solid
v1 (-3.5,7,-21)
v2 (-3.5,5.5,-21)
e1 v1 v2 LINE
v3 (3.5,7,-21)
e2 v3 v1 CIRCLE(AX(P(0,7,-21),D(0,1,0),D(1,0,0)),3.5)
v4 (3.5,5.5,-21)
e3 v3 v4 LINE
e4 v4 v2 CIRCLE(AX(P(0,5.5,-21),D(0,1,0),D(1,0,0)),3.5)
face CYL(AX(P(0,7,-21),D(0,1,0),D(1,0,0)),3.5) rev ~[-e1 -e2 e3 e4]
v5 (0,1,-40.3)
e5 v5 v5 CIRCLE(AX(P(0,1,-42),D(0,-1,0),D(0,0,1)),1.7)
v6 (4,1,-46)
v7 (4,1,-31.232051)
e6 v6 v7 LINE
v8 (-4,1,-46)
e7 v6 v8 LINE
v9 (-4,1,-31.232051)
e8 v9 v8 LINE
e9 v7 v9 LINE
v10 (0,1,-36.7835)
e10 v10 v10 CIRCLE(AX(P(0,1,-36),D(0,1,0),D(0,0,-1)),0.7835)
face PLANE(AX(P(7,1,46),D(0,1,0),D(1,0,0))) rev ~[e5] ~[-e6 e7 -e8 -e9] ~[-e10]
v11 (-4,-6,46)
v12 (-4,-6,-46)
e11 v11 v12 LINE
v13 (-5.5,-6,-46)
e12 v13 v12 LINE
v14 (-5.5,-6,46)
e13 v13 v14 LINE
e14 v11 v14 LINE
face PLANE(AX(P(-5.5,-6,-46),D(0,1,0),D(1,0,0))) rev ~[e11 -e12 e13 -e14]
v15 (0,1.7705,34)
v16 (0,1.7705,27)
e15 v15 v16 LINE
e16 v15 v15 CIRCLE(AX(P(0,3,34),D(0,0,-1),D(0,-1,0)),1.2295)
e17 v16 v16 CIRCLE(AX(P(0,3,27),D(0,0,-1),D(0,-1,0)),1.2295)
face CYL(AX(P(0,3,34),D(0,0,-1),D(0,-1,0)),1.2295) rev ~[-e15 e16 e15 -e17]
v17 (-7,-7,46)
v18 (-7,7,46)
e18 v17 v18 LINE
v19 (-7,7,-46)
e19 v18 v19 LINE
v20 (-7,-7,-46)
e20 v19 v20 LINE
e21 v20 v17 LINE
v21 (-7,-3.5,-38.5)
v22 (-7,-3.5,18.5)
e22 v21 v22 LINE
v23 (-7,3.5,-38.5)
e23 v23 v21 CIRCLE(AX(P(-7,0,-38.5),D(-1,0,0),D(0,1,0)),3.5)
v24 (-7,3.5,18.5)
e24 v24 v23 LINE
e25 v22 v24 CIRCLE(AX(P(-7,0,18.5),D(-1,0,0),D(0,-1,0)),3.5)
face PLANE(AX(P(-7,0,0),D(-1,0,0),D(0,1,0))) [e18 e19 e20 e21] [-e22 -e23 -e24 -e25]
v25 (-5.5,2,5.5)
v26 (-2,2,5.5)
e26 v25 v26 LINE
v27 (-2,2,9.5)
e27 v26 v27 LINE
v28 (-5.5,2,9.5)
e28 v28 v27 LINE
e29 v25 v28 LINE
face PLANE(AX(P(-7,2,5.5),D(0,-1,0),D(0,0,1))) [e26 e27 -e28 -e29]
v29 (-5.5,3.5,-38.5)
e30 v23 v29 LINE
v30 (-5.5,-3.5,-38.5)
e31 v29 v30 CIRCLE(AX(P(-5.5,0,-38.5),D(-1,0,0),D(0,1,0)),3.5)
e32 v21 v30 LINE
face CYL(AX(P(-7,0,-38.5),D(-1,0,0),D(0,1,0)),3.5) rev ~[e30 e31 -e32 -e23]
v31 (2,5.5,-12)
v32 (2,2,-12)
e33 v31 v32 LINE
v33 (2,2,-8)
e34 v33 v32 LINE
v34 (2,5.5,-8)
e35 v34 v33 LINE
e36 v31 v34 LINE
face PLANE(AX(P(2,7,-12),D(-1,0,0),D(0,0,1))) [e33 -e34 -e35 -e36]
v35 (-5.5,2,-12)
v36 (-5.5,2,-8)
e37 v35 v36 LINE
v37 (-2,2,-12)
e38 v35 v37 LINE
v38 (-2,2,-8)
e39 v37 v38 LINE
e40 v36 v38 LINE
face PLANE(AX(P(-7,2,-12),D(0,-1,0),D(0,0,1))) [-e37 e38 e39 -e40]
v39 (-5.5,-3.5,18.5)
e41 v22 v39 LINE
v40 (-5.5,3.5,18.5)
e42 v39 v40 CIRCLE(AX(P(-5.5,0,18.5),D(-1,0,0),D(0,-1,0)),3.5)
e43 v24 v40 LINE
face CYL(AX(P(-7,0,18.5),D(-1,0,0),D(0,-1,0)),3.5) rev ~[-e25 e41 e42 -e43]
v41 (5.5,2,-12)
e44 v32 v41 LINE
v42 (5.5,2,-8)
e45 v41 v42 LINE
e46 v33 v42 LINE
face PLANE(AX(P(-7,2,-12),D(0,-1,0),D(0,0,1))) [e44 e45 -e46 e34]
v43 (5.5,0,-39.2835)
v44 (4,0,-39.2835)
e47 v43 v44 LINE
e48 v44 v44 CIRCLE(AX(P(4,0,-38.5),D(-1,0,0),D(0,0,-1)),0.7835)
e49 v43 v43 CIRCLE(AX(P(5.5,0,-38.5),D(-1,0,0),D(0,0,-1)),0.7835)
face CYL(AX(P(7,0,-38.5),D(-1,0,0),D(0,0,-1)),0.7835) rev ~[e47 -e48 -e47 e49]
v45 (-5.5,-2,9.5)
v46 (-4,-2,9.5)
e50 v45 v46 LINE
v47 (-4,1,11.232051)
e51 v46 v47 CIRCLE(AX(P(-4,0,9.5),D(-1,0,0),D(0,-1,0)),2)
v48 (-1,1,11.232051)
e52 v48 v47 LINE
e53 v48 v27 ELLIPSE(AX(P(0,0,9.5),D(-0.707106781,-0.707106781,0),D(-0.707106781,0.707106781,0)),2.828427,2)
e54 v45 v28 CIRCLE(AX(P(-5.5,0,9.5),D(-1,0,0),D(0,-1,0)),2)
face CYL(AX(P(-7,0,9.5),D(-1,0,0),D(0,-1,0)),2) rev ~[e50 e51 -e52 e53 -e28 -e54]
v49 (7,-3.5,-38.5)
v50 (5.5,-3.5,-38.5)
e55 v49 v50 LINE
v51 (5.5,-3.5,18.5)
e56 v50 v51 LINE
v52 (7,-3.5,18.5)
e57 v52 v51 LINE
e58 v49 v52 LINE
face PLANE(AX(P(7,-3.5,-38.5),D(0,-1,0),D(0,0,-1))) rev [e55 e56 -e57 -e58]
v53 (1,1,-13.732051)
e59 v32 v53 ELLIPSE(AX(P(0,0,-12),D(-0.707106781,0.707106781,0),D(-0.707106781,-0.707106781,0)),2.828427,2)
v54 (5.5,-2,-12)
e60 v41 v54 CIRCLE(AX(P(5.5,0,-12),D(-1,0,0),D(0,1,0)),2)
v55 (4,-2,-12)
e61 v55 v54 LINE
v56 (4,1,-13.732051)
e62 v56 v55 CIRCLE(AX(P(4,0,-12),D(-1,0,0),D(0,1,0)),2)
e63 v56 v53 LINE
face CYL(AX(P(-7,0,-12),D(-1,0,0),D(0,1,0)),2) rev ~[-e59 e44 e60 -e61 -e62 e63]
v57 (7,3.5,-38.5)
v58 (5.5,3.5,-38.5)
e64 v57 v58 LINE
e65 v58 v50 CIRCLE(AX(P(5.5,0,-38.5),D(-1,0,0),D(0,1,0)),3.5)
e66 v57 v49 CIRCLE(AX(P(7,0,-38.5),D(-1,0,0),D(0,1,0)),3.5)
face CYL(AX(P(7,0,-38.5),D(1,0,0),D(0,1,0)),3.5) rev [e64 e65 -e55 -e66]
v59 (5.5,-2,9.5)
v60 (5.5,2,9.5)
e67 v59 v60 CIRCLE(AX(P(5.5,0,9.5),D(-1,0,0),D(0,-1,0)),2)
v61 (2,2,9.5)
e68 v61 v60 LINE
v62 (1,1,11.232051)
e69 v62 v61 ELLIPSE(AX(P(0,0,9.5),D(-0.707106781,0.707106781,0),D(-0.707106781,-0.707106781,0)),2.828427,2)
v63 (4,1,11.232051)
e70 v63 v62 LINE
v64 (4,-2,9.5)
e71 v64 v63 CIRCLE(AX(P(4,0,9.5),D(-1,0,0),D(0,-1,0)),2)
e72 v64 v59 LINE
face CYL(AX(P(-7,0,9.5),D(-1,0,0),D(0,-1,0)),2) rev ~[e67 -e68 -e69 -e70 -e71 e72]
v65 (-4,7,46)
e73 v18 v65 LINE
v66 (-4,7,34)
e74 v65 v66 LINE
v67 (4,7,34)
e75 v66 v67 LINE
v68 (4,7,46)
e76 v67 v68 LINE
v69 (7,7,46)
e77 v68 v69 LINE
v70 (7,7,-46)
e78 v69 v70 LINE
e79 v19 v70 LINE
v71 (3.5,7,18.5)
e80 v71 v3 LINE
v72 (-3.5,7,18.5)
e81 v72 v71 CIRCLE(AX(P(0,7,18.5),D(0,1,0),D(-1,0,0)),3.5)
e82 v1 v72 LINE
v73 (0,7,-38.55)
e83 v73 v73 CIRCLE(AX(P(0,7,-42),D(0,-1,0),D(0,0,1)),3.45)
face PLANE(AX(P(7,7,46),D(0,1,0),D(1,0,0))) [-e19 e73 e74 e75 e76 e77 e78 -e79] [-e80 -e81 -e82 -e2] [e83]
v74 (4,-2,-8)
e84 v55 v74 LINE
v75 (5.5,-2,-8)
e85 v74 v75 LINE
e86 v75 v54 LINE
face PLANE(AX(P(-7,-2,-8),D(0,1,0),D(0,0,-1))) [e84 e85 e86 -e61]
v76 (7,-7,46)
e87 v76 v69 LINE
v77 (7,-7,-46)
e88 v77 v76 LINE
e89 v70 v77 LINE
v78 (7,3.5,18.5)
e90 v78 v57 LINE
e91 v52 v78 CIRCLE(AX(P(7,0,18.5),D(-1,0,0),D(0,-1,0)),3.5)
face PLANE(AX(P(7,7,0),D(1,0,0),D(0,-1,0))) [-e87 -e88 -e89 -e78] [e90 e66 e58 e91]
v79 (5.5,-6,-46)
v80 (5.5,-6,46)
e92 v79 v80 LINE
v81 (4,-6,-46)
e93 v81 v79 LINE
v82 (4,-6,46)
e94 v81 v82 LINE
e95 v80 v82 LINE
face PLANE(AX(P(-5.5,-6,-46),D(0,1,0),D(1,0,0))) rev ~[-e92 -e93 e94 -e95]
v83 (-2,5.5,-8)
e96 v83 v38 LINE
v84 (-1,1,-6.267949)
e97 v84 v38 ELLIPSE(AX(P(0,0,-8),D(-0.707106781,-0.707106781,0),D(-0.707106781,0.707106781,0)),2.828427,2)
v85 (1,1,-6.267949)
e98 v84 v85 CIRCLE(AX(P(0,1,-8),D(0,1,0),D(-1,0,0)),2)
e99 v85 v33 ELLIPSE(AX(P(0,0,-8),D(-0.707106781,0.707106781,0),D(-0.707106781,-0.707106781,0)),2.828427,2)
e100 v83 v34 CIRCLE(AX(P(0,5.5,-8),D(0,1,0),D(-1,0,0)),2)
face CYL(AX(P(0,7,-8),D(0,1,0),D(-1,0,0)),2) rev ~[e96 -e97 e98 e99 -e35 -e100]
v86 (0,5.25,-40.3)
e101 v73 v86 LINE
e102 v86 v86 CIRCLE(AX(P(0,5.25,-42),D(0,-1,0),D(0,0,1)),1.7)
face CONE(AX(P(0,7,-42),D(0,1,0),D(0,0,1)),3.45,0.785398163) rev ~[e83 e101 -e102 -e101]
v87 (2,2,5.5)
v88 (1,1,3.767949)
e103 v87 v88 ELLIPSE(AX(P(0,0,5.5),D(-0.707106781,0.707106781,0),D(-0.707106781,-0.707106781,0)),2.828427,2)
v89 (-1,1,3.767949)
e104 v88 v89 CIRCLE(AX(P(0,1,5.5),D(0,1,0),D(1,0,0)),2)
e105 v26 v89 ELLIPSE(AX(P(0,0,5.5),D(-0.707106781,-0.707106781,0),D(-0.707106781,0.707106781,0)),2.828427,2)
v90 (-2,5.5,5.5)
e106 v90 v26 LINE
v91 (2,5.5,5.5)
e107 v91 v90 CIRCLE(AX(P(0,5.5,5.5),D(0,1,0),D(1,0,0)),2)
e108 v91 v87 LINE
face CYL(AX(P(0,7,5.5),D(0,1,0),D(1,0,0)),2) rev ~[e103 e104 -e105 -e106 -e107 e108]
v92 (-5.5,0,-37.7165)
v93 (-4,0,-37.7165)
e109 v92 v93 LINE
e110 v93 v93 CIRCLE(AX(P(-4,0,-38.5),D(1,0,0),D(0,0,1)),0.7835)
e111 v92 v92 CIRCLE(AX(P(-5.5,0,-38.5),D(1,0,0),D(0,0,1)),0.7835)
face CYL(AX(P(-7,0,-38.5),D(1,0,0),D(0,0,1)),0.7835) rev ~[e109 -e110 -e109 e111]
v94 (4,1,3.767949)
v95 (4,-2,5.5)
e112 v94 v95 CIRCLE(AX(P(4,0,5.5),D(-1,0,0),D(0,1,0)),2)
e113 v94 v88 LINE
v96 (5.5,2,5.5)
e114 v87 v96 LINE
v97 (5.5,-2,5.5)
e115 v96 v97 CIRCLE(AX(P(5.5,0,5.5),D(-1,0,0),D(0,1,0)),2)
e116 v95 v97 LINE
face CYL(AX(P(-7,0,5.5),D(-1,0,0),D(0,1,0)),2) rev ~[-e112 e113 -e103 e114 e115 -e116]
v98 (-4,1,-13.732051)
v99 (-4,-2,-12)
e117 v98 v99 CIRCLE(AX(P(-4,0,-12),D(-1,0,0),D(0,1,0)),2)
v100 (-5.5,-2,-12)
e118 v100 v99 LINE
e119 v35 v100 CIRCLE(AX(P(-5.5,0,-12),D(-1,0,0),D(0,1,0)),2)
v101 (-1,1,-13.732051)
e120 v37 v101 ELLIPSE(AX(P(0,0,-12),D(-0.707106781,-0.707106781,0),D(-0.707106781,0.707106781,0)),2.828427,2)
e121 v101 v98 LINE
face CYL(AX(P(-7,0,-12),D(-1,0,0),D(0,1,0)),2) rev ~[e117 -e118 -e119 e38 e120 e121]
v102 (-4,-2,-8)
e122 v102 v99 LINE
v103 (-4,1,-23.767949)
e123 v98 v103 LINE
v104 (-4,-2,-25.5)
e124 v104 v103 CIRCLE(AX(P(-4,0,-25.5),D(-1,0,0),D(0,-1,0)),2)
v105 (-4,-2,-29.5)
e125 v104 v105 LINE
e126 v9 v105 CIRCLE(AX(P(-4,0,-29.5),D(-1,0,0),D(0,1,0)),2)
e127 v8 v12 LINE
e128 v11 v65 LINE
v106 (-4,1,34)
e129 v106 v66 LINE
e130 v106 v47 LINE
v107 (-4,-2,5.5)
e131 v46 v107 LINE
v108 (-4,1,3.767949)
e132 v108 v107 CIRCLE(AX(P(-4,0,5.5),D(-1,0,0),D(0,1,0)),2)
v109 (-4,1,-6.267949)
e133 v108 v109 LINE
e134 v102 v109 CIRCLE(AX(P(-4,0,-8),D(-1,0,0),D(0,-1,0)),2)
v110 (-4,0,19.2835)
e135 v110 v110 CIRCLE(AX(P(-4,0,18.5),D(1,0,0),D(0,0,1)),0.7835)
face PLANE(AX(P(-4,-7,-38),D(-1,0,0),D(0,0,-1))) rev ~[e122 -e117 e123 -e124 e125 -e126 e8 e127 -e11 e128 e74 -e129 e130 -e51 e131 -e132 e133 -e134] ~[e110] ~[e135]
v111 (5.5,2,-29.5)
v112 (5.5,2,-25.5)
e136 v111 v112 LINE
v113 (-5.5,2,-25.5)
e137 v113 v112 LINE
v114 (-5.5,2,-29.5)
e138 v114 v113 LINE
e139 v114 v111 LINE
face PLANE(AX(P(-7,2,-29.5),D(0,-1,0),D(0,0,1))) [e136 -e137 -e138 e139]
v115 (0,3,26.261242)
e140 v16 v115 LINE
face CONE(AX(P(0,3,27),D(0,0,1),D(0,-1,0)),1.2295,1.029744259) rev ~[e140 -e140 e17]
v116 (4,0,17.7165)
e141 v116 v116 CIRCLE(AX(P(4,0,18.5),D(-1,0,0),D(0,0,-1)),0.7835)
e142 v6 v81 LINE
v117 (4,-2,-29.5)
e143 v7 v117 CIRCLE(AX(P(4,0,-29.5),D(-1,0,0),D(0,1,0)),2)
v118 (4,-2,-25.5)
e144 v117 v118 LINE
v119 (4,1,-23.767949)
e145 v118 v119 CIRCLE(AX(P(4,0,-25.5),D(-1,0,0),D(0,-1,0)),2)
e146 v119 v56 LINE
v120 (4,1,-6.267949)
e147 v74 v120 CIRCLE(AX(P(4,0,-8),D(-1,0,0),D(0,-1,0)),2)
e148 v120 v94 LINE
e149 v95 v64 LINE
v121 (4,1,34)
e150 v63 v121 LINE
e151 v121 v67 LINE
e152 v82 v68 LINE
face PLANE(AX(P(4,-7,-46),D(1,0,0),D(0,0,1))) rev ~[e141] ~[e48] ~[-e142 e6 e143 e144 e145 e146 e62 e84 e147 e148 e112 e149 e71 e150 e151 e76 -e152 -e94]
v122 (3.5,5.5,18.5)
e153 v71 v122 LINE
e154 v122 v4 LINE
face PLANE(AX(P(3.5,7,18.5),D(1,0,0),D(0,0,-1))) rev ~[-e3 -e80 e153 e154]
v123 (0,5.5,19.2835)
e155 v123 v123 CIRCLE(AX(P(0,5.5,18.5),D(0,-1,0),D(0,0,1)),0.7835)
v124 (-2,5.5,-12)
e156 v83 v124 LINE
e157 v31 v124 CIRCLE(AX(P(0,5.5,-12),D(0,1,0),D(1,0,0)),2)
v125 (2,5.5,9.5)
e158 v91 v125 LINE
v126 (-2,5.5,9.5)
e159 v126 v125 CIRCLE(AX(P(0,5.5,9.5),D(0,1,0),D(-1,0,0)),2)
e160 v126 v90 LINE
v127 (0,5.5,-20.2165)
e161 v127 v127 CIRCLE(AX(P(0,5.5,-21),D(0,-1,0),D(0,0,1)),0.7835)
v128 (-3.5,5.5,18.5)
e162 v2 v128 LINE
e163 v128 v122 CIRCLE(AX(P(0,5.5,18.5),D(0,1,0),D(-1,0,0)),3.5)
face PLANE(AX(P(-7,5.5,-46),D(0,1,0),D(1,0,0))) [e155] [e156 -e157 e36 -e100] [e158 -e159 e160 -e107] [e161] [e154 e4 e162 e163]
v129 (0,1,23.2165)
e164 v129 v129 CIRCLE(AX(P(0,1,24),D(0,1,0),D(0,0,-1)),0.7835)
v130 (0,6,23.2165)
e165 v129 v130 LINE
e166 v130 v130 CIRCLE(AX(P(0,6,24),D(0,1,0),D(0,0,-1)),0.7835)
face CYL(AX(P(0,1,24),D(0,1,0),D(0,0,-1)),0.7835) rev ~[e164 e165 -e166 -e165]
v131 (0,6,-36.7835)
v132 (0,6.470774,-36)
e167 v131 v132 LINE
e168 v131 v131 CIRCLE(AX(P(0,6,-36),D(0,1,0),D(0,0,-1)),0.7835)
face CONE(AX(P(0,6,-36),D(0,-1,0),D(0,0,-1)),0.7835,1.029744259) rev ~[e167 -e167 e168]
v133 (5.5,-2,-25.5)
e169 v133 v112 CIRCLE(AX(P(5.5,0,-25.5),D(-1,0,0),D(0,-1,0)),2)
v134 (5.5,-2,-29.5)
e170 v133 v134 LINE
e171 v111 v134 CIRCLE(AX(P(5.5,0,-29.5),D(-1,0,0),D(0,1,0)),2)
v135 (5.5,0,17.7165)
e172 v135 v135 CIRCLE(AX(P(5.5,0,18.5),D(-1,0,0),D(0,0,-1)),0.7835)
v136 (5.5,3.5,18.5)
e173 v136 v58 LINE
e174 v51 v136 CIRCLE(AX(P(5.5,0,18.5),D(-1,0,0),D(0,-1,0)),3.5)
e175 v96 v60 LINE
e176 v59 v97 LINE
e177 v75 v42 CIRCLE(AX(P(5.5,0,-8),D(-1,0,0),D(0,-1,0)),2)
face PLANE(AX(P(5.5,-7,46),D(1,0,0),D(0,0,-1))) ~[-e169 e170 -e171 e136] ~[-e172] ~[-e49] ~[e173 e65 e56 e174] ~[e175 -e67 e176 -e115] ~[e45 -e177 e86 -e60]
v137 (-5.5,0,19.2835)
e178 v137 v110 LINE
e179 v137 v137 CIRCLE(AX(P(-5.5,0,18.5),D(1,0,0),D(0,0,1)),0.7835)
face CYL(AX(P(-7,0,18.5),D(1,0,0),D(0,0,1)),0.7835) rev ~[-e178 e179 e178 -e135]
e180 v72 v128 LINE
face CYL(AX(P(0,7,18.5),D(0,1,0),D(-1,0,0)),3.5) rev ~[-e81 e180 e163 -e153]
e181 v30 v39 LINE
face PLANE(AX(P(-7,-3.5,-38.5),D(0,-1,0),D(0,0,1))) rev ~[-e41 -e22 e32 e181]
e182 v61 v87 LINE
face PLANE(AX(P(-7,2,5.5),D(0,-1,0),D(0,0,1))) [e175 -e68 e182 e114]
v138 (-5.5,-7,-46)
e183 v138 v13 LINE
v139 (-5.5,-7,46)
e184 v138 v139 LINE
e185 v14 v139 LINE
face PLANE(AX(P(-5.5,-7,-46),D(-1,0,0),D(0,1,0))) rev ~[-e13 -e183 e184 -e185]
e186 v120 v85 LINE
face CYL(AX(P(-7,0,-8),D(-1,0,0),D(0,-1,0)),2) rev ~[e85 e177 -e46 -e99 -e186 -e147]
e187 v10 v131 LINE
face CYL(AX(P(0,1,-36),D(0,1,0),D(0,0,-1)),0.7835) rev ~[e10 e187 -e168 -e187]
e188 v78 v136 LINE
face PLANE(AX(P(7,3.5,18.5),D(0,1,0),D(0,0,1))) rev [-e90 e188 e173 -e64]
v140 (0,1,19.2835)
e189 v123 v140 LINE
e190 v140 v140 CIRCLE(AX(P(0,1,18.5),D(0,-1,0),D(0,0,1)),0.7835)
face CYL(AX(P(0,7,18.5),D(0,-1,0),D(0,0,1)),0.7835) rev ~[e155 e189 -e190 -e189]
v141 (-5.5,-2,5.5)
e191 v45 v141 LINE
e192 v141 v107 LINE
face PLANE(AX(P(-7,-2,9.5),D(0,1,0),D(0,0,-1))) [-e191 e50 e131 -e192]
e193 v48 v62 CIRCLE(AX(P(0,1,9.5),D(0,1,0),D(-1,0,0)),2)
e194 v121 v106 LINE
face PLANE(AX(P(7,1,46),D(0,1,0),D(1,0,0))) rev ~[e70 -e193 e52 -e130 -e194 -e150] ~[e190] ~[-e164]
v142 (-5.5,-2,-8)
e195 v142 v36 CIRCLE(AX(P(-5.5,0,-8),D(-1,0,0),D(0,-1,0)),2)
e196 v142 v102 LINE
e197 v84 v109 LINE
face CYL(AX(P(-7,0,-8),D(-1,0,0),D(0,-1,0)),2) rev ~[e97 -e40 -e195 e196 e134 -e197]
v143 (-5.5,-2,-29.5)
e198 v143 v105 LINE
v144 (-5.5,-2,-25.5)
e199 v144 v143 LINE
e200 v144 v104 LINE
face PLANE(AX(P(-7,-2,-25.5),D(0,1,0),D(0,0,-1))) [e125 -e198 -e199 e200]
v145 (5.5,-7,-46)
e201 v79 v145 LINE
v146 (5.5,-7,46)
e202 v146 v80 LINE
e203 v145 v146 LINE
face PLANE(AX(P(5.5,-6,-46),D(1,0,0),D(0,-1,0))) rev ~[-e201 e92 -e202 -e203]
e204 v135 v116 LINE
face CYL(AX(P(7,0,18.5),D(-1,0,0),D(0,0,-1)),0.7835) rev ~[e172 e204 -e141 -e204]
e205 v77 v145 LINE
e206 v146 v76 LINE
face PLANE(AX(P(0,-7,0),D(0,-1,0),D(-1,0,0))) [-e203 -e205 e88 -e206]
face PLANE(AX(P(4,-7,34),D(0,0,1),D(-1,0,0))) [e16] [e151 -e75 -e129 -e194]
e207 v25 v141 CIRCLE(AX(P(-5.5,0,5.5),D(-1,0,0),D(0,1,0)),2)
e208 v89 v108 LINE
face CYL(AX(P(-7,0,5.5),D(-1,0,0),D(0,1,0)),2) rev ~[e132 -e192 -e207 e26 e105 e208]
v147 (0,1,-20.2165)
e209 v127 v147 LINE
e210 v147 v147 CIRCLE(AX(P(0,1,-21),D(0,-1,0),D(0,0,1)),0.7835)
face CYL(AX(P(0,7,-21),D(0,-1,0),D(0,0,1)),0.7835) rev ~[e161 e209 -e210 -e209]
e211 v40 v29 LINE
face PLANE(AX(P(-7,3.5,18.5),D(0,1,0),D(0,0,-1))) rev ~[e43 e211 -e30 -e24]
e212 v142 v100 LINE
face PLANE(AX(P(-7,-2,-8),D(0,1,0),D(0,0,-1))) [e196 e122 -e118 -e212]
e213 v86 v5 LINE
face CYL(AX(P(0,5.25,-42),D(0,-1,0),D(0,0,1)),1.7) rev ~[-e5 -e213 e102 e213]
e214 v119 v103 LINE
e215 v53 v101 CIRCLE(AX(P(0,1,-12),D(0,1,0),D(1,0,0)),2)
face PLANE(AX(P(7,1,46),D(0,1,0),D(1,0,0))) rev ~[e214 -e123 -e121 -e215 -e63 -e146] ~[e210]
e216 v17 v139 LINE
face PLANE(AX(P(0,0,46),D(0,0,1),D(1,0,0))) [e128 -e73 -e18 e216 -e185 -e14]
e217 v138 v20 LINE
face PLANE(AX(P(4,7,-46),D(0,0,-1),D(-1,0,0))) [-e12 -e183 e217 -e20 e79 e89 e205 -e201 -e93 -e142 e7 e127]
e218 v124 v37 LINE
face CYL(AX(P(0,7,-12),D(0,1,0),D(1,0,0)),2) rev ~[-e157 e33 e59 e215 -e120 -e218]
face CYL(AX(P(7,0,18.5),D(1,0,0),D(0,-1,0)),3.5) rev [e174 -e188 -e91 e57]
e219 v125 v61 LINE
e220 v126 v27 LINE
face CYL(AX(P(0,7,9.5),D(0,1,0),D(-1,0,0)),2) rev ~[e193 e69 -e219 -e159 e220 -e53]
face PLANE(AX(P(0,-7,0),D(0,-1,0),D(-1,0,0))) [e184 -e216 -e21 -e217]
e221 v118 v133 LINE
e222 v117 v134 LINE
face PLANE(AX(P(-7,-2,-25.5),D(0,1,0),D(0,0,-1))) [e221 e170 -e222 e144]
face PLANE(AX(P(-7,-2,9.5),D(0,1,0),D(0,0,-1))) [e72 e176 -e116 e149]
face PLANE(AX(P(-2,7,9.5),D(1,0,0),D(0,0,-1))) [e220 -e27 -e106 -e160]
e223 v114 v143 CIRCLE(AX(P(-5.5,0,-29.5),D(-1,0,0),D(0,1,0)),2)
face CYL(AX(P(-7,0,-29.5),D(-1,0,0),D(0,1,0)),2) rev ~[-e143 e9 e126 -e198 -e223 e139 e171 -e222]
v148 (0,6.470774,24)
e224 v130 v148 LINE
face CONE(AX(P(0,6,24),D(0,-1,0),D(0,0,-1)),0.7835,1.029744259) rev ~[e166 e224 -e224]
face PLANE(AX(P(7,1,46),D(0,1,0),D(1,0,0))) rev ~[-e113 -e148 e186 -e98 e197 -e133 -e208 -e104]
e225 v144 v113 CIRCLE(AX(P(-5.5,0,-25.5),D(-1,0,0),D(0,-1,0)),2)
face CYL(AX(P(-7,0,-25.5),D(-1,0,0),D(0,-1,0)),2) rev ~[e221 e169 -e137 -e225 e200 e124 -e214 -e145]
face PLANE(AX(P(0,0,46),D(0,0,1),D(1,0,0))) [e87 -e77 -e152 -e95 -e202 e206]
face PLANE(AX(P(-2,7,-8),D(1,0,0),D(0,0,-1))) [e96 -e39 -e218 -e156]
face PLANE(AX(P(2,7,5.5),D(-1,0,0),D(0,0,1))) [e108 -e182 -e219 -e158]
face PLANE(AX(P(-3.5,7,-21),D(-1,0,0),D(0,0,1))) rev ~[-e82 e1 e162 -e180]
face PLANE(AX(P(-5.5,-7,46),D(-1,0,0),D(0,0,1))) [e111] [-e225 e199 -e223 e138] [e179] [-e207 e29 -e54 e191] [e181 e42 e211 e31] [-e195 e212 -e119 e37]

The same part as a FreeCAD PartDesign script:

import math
import FreeCAD as App
import Part
import Sketcher
from FreeCAD import Vector
Q = App.Units.Quantity


def add_polygon(sketch, points):
    """Adds a closed chain of lines whose ends are joined by coincident constraints."""
    first, n = sketch.GeometryCount, len(points)
    for a, b in zip(points, points[1:] + points[:1]):
        sketch.addGeometry(Part.LineSegment(App.Vector(*a, 0), App.Vector(*b, 0)), False)
    for i in range(n):
        sketch.addConstraint(Sketcher.Constraint("Coincident", first + i, 2, first + (i + 1) % n, 1))

doc = App.newDocument("Part")
body = doc.addObject("PartDesign::Body", "Body")

sketch1 = doc.addObject("Sketcher::SketchObject", "Sketch")
body.addObject(sketch1)
sketch1.AttachmentSupport = (doc.XY_Plane, [""])
sketch1.MapMode = "FlatFace"
add_polygon(sketch1, [(-7, 7), (-7, -7), (7, -7), (7, 7)])
sketch1.addConstraint([
    Sketcher.Constraint("Vertical", 0),
    Sketcher.Constraint("Horizontal", 1),
    Sketcher.Constraint("Vertical", 2),
    Sketcher.Constraint("Horizontal", 3),
    Sketcher.Constraint("Symmetric", 0, 2, 2, 2, -1, 1),
    Sketcher.Constraint("Equal", 3, 0),
    Sketcher.Constraint("DistanceX", 1, 1, 1, 2, Q("14 mm")),
])
pad1 = doc.addObject("PartDesign::Pad", "Pad")
body.addObject(pad1)
pad1.Profile = sketch1
pad1.Length = 92
pad1.Midplane = True

sketch2 = doc.addObject("Sketcher::SketchObject", "Sketch001")
body.addObject(sketch2)
sketch2.AttachmentSupport = (doc.XZ_Plane, [""])
sketch2.MapMode = "FlatFace"
sketch2.AttachmentOffset = App.Placement(Vector(0, 0, 7), App.Rotation())
add_polygon(sketch2, [(4, 46), (-4, 46), (-4, 34), (4, 34)])
add_polygon(sketch2, [(-4, -38), (-4, -46), (4, -46), (4, -38)])
sketch2.addConstraint([
    Sketcher.Constraint("Horizontal", 0),
    Sketcher.Constraint("Vertical", 1),
    Sketcher.Constraint("Horizontal", 2),
    Sketcher.Constraint("Vertical", 3),
    Sketcher.Constraint("Vertical", 4),
    Sketcher.Constraint("Horizontal", 5),
    Sketcher.Constraint("Vertical", 6),
    Sketcher.Constraint("Horizontal", 7),
    Sketcher.Constraint("Symmetric", 3, 2, 4, 2, -1, 1),
    Sketcher.Constraint("Vertical", 1, 2, 4, 2),
    Sketcher.Constraint("Vertical", 3, 2, 5, 2),
    Sketcher.Constraint("Equal", 7, 4),
    Sketcher.Constraint("DistanceX", 0, 2, 0, 1, Q("8 mm")),
    Sketcher.Constraint("DistanceY", 1, 2, 1, 1, Q("12 mm")),
    Sketcher.Constraint("DistanceY", -1, 1, 0, 2, Q("46 mm")),
])
pocket1 = doc.addObject("PartDesign::Pocket", "Pocket")
body.addObject(pocket1)
pocket1.Profile = sketch2
pocket1.Type = "ThroughAll"

sketch3 = doc.addObject("Sketcher::SketchObject", "Sketch002")
body.addObject(sketch3)
sketch3.AttachmentSupport = (doc.XY_Plane, [""])
sketch3.MapMode = "FlatFace"
sketch3.AttachmentOffset = App.Placement(Vector(0, 0, 34), App.Rotation())
add_polygon(sketch3, [(-4, -7), (4, -7), (4, 1), (-4, 1)])
sketch3.addConstraint([
    Sketcher.Constraint("Horizontal", 0),
    Sketcher.Constraint("Vertical", 1),
    Sketcher.Constraint("Horizontal", 2),
    Sketcher.Constraint("Vertical", 3),
    Sketcher.Constraint("Equal", 2, 1),
    Sketcher.Constraint("DistanceX", 0, 1, 0, 2, Q("8 mm")),
    Sketcher.Constraint("DistanceX", -1, 1, 0, 2, Q("4 mm")),
    Sketcher.Constraint("DistanceY", 0, 2, -1, 1, Q("7 mm")),
])
pocket2 = doc.addObject("PartDesign::Pocket", "Pocket001")
body.addObject(pocket2)
pocket2.Profile = sketch3
pocket2.Type = "ThroughAll"

sketch4 = doc.addObject("Sketcher::SketchObject", "Sketch003")
body.addObject(sketch4)
sketch4.AttachmentSupport = (doc.XY_Plane, [""])
sketch4.MapMode = "FlatFace"
sketch4.AttachmentOffset = App.Placement(Vector(0, 0, 34), App.Rotation())
sketch4.addGeometry(Part.Circle(Vector(0, 3, 0), Vector(0, 0, 1), 1.2295), False)
sketch4.addConstraint([
    Sketcher.Constraint("PointOnObject", 0, 3, -2),
    Sketcher.Constraint("Diameter", 0, Q("2.459 mm")),
    Sketcher.Constraint("DistanceY", -1, 1, 0, 3, Q("3 mm")),
])
doc.recompute()
hole = doc.addObject("PartDesign::Hole", "Hole")
body.addObject(hole)
hole.Profile = sketch4
hole.ThreadType = "None"
hole.Diameter = 2.459
hole.DepthType = "Dimension"
hole.Depth = 7
hole.DrillPoint = "Angled"
hole.DrillPointAngle = 118

sketch5 = doc.addObject("Sketcher::SketchObject", "Sketch004")
body.addObject(sketch5)
sketch5.AttachmentSupport = (doc.XZ_Plane, [""])
sketch5.MapMode = "FlatFace"
sketch5.AttachmentOffset = App.Placement(Vector(0, 0, -7), App.Rotation())
add_polygon(sketch5, [(-4, -46), (-4, -38), (4, -38), (4, -46)])
sketch5.addConstraint([
    Sketcher.Constraint("Vertical", 0),
    Sketcher.Constraint("Horizontal", 1),
    Sketcher.Constraint("Vertical", 2),
    Sketcher.Constraint("Horizontal", 3),
    Sketcher.Constraint("Equal", 3, 0),
    Sketcher.Constraint("DistanceX", 1, 1, 1, 2, Q("8 mm")),
    Sketcher.Constraint("DistanceX", 0, 2, -1, 1, Q("4 mm")),
    Sketcher.Constraint("DistanceY", 0, 2, -1, 1, Q("38 mm")),
])
pad2 = doc.addObject("PartDesign::Pad", "Pad001")
body.addObject(pad2)
pad2.Profile = sketch5
pad2.Length = 6

sketch6 = doc.addObject("Sketcher::SketchObject", "Sketch005")
body.addObject(sketch6)
sketch6.AttachmentSupport = (doc.YZ_Plane, [""])
sketch6.MapMode = "FlatFace"
sketch6.AttachmentOffset = App.Placement(Vector(0, 0, -7), App.Rotation())
sketch6.addGeometry([
    Part.ArcOfCircle(Part.Circle(Vector(0, -38.5, 0), Vector(0, 0, 1), 3.5), math.radians(180), math.radians(360)),
    Part.LineSegment(Vector(-3.5, -38.5, 0), Vector(-3.5, 18.5, 0)),
    Part.ArcOfCircle(Part.Circle(Vector(0, 18.5, 0), Vector(0, 0, 1), 3.5), math.radians(0), math.radians(180)),
    Part.LineSegment(Vector(3.5, 18.5, 0), Vector(3.5, -38.5, 0)),
], False)
sketch6.addConstraint([
    Sketcher.Constraint("Tangent", 0, 1, 1, 1),
    Sketcher.Constraint("Tangent", 1, 2, 2, 2),
    Sketcher.Constraint("Tangent", 2, 1, 3, 1),
    Sketcher.Constraint("Tangent", 3, 2, 0, 2),
    Sketcher.Constraint("Vertical", 1),
    Sketcher.Constraint("Vertical", 3),
    Sketcher.Constraint("PointOnObject", 0, 3, -2),
    Sketcher.Constraint("Radius", 0, Q("3.5 mm")),
    Sketcher.Constraint("DistanceY", 1, 1, 1, 2, Q("57 mm")),
    Sketcher.Constraint("DistanceY", 0, 3, -1, 1, Q("38.5 mm")),
])
pocket3 = doc.addObject("PartDesign::Pocket", "Pocket002")
body.addObject(pocket3)
pocket3.Profile = sketch6
pocket3.Length = 1.5
pocket3.Reversed = True

sketch7 = doc.addObject("Sketcher::SketchObject", "Sketch006")
body.addObject(sketch7)
sketch7.AttachmentSupport = (doc.XZ_Plane, [""])
sketch7.MapMode = "FlatFace"
sketch7.AttachmentOffset = App.Placement(Vector(0, 0, -7), App.Rotation())
sketch7.addGeometry([
    Part.ArcOfCircle(Part.Circle(Vector(0, -21, 0), Vector(0, 0, 1), 3.5), math.radians(180), math.radians(360)),
    Part.LineSegment(Vector(-3.5, -21, 0), Vector(-3.5, 18.5, 0)),
    Part.ArcOfCircle(Part.Circle(Vector(0, 18.5, 0), Vector(0, 0, 1), 3.5), math.radians(0), math.radians(180)),
    Part.LineSegment(Vector(3.5, 18.5, 0), Vector(3.5, -21, 0)),
], False)
sketch7.addConstraint([
    Sketcher.Constraint("Tangent", 0, 1, 1, 1),
    Sketcher.Constraint("Tangent", 1, 2, 2, 2),
    Sketcher.Constraint("Tangent", 2, 1, 3, 1),
    Sketcher.Constraint("Tangent", 3, 2, 0, 2),
    Sketcher.Constraint("Vertical", 1),
    Sketcher.Constraint("Vertical", 3),
    Sketcher.Constraint("PointOnObject", 0, 3, -2),
    Sketcher.Constraint("Radius", 0, Q("3.5 mm")),
    Sketcher.Constraint("DistanceY", 1, 1, 1, 2, Q("39.5 mm")),
    Sketcher.Constraint("DistanceY", 0, 3, -1, 1, Q("21 mm")),
])
pocket4 = doc.addObject("PartDesign::Pocket", "Pocket003")
body.addObject(pocket4)
pocket4.Profile = sketch7
pocket4.Length = 1.5
pocket4.Reversed = True
doc.recompute()

mirrored = doc.addObject("PartDesign::Mirrored", "Mirrored")
body.addObject(mirrored)
mirrored.Originals = [pocket3]
mirrored.MirrorPlane = (doc.YZ_Plane, [""])
body.Tip = mirrored

sketch8 = doc.addObject("Sketcher::SketchObject", "Sketch007")
body.addObject(sketch8)
sketch8.AttachmentSupport = (doc.XY_Plane, [""])
sketch8.MapMode = "FlatFace"
sketch8.AttachmentOffset = App.Placement(Vector(0, 0, -46), App.Rotation())
add_polygon(sketch8, [(5.5, -6), (5.5, -7), (-5.5, -7), (-5.5, -6)])
sketch8.addConstraint([
    Sketcher.Constraint("Vertical", 0),
    Sketcher.Constraint("Horizontal", 1),
    Sketcher.Constraint("Vertical", 2),
    Sketcher.Constraint("Horizontal", 3),
    Sketcher.Constraint("DistanceX", 1, 2, 1, 1, Q("11 mm")),
    Sketcher.Constraint("DistanceY", 0, 2, 0, 1, Q("1 mm")),
    Sketcher.Constraint("DistanceY", 0, 2, -1, 1, Q("7 mm")),
    Sketcher.Constraint("DistanceX", -1, 1, 0, 2, Q("5.5 mm")),
])
pocket5 = doc.addObject("PartDesign::Pocket", "Pocket004")
body.addObject(pocket5)
pocket5.Profile = sketch8
pocket5.Type = "ThroughAll"
pocket5.Reversed = True

sketch9 = doc.addObject("Sketcher::SketchObject", "Sketch008")
body.addObject(sketch9)
sketch9.AttachmentSupport = (doc.YZ_Plane, [""])
sketch9.MapMode = "FlatFace"
sketch9.AttachmentOffset = App.Placement(Vector(0, 0, -7), App.Rotation())
sketch9.addGeometry([
    Part.LineSegment(Vector(2, -8, 0), Vector(2, -12, 0)),
    Part.ArcOfCircle(Part.Circle(Vector(0, -12, 0), Vector(0, 0, 1), 2), math.radians(180), math.radians(360)),
    Part.LineSegment(Vector(-2, -12, 0), Vector(-2, -8, 0)),
    Part.ArcOfCircle(Part.Circle(Vector(0, -8, 0), Vector(0, 0, 1), 2), math.radians(0), math.radians(180)),
    Part.LineSegment(Vector(-2, -29.5, 0), Vector(-2, -25.5, 0)),
    Part.ArcOfCircle(Part.Circle(Vector(0, -25.5, 0), Vector(0, 0, 1), 2), math.radians(0), math.radians(180)),
    Part.LineSegment(Vector(2, -25.5, 0), Vector(2, -29.5, 0)),
    Part.ArcOfCircle(Part.Circle(Vector(0, -29.5, 0), Vector(0, 0, 1), 2), math.radians(180), math.radians(360)),
    Part.LineSegment(Vector(2, 9.5, 0), Vector(2, 5.5, 0)),
    Part.ArcOfCircle(Part.Circle(Vector(0, 5.5, 0), Vector(0, 0, 1), 2), math.radians(180), math.radians(360)),
    Part.LineSegment(Vector(-2, 5.5, 0), Vector(-2, 9.5, 0)),
    Part.ArcOfCircle(Part.Circle(Vector(0, 9.5, 0), Vector(0, 0, 1), 2), math.radians(0), math.radians(180)),
], False)
sketch9.addConstraint([
    Sketcher.Constraint("Tangent", 0, 2, 1, 2),
    Sketcher.Constraint("Tangent", 1, 1, 2, 1),
    Sketcher.Constraint("Tangent", 2, 2, 3, 2),
    Sketcher.Constraint("Tangent", 3, 1, 0, 1),
    Sketcher.Constraint("Tangent", 4, 2, 5, 2),
    Sketcher.Constraint("Tangent", 5, 1, 6, 1),
    Sketcher.Constraint("Tangent", 6, 2, 7, 2),
    Sketcher.Constraint("Tangent", 7, 1, 4, 1),
    Sketcher.Constraint("Tangent", 8, 2, 9, 2),
    Sketcher.Constraint("Tangent", 9, 1, 10, 1),
    Sketcher.Constraint("Tangent", 10, 2, 11, 2),
    Sketcher.Constraint("Tangent", 11, 1, 8, 1),
    Sketcher.Constraint("Vertical", 0),
    Sketcher.Constraint("Vertical", 2),
    Sketcher.Constraint("Vertical", 4),
    Sketcher.Constraint("Vertical", 6),
    Sketcher.Constraint("Vertical", 8),
    Sketcher.Constraint("Vertical", 10),
    Sketcher.Constraint("Equal", 3, 5),
    Sketcher.Constraint("Equal", 7, 9),
    Sketcher.Constraint("PointOnObject", 1, 3, -2),
    Sketcher.Constraint("PointOnObject", 5, 3, -2),
    Sketcher.Constraint("PointOnObject", 9, 3, -2),
    Sketcher.Constraint("Equal", 2, 4),
    Sketcher.Constraint("Equal", 6, 8),
    Sketcher.Constraint("Radius", 1, Q("2 mm")),
    Sketcher.Constraint("DistanceY", 0, 2, 0, 1, Q("4 mm")),
    Sketcher.Constraint("DistanceY", 1, 3, -1, 1, Q("12 mm")),
    Sketcher.Constraint("DistanceY", 5, 3, 9, 3, Q("31 mm")),
    Sketcher.Constraint("DistanceY", 5, 3, -1, 1, Q("25.5 mm")),
])
pocket6 = doc.addObject("PartDesign::Pocket", "Pocket005")
body.addObject(pocket6)
pocket6.Profile = sketch9
pocket6.Type = "ThroughAll"
pocket6.Reversed = True

sketch10 = doc.addObject("Sketcher::SketchObject", "Sketch009")
body.addObject(sketch10)
sketch10.AttachmentSupport = (doc.XZ_Plane, [""])
sketch10.MapMode = "FlatFace"
sketch10.AttachmentOffset = App.Placement(Vector(0, 0, -7), App.Rotation())
sketch10.addGeometry([
    Part.LineSegment(Vector(-2, -12, 0), Vector(-2, -8, 0)),
    Part.ArcOfCircle(Part.Circle(Vector(0, -8, 0), Vector(0, 0, 1), 2), math.radians(0), math.radians(180)),
    Part.LineSegment(Vector(2, -8, 0), Vector(2, -12, 0)),
    Part.ArcOfCircle(Part.Circle(Vector(0, -12, 0), Vector(0, 0, 1), 2), math.radians(180), math.radians(360)),
    Part.LineSegment(Vector(2, 9.5, 0), Vector(2, 5.5, 0)),
    Part.ArcOfCircle(Part.Circle(Vector(0, 5.5, 0), Vector(0, 0, 1), 2), math.radians(180), math.radians(360)),
    Part.LineSegment(Vector(-2, 5.5, 0), Vector(-2, 9.5, 0)),
    Part.ArcOfCircle(Part.Circle(Vector(0, 9.5, 0), Vector(0, 0, 1), 2), math.radians(0), math.radians(180)),
], False)
sketch10.addConstraint([
    Sketcher.Constraint("Tangent", 0, 2, 1, 2),
    Sketcher.Constraint("Tangent", 1, 1, 2, 1),
    Sketcher.Constraint("Tangent", 2, 2, 3, 2),
    Sketcher.Constraint("Tangent", 3, 1, 0, 1),
    Sketcher.Constraint("Tangent", 4, 2, 5, 2),
    Sketcher.Constraint("Tangent", 5, 1, 6, 1),
    Sketcher.Constraint("Tangent", 6, 2, 7, 2),
    Sketcher.Constraint("Tangent", 7, 1, 4, 1),
    Sketcher.Constraint("Vertical", 0),
    Sketcher.Constraint("Vertical", 2),
    Sketcher.Constraint("Vertical", 4),
    Sketcher.Constraint("Vertical", 6),
    Sketcher.Constraint("Equal", 3, 5),
    Sketcher.Constraint("PointOnObject", 1, 3, -2),
    Sketcher.Constraint("PointOnObject", 5, 3, -2),
    Sketcher.Constraint("Equal", 2, 4),
    Sketcher.Constraint("Radius", 1, Q("2 mm")),
    Sketcher.Constraint("DistanceY", 0, 1, 0, 2, Q("4 mm")),
    Sketcher.Constraint("DistanceY", 1, 3, -1, 1, Q("8 mm")),
    Sketcher.Constraint("DistanceY", -1, 1, 5, 3, Q("5.5 mm")),
])
pocket7 = doc.addObject("PartDesign::Pocket", "Pocket006")
body.addObject(pocket7)
pocket7.Profile = sketch10
pocket7.Type = "ThroughAll"
pocket7.Reversed = True

sketch11 = doc.addObject("Sketcher::SketchObject", "Sketch010")
body.addObject(sketch11)
sketch11.AttachmentSupport = (doc.YZ_Plane, [""])
sketch11.MapMode = "FlatFace"
sketch11.AttachmentOffset = App.Placement(Vector(0, 0, 7), App.Rotation())
sketch11.addGeometry([
    Part.Circle(Vector(0, 18.5, 0), Vector(0, 0, 1), 0.7835),
    Part.Circle(Vector(0, -38.5, 0), Vector(0, 0, 1), 0.7835),
], False)
sketch11.addConstraint([
    Sketcher.Constraint("Equal", 0, 1),
    Sketcher.Constraint("PointOnObject", 0, 3, -2),
    Sketcher.Constraint("PointOnObject", 1, 3, -2),
    Sketcher.Constraint("Diameter", 0, Q("1.567 mm")),
    Sketcher.Constraint("DistanceY", 1, 3, 0, 3, Q("57 mm")),
    Sketcher.Constraint("DistanceY", -1, 1, 0, 3, Q("18.5 mm")),
])
doc.recompute()
hole2 = doc.addObject("PartDesign::Hole", "Hole001")
body.addObject(hole2)
hole2.Profile = sketch11
hole2.ThreadType = "None"
hole2.Diameter = 1.567
hole2.DepthType = "Dimension"
hole2.Depth = 3
hole2.DrillPoint = "Angled"
hole2.DrillPointAngle = 118

sketch12 = doc.addObject("Sketcher::SketchObject", "Sketch011")
body.addObject(sketch12)
sketch12.AttachmentSupport = (doc.YZ_Plane, [""])
sketch12.MapMode = "FlatFace"
sketch12.AttachmentOffset = App.Placement(Vector(0, 0, -7), App.Rotation())
sketch12.addGeometry([
    Part.Circle(Vector(0, 18.5, 0), Vector(0, 0, 1), 0.7835),
    Part.Circle(Vector(0, -38.5, 0), Vector(0, 0, 1), 0.7835),
], False)
sketch12.addConstraint([
    Sketcher.Constraint("Equal", 0, 1),
    Sketcher.Constraint("PointOnObject", 0, 3, -2),
    Sketcher.Constraint("PointOnObject", 1, 3, -2),
    Sketcher.Constraint("Diameter", 0, Q("1.567 mm")),
    Sketcher.Constraint("DistanceY", 1, 3, 0, 3, Q("57 mm")),
    Sketcher.Constraint("DistanceY", -1, 1, 0, 3, Q("18.5 mm")),
])
doc.recompute()
hole3 = doc.addObject("PartDesign::Hole", "Hole002")
body.addObject(hole3)
hole3.Profile = sketch12
hole3.ThreadType = "None"
hole3.Diameter = 1.567
hole3.DepthType = "Dimension"
hole3.Depth = 3
hole3.DrillPoint = "Angled"
hole3.DrillPointAngle = 118
hole3.Reversed = True

sketch13 = doc.addObject("Sketcher::SketchObject", "Sketch012")
body.addObject(sketch13)
sketch13.AttachmentSupport = (doc.XZ_Plane, [""])
sketch13.MapMode = "FlatFace"
sketch13.AttachmentOffset = App.Placement(Vector(0, 0, -7), App.Rotation())
sketch13.addGeometry([
    Part.Circle(Vector(0, -21, 0), Vector(0, 0, 1), 0.7835),
    Part.Circle(Vector(0, 18.5, 0), Vector(0, 0, 1), 0.7835),
], False)
sketch13.addConstraint([
    Sketcher.Constraint("Equal", 0, 1),
    Sketcher.Constraint("PointOnObject", 0, 3, -2),
    Sketcher.Constraint("PointOnObject", 1, 3, -2),
    Sketcher.Constraint("Diameter", 0, Q("1.567 mm")),
    Sketcher.Constraint("DistanceY", 0, 3, -1, 1, Q("21 mm")),
    Sketcher.Constraint("DistanceY", -1, 1, 1, 3, Q("18.5 mm")),
])
doc.recompute()
hole4 = doc.addObject("PartDesign::Hole", "Hole003")
body.addObject(hole4)
hole4.Profile = sketch13
hole4.ThreadType = "None"
hole4.Diameter = 1.567
hole4.DepthType = "ThroughAll"
hole4.Reversed = True

sketch14 = doc.addObject("Sketcher::SketchObject", "Sketch013")
body.addObject(sketch14)
sketch14.AttachmentSupport = (doc.XZ_Plane, [""])
sketch14.MapMode = "FlatFace"
sketch14.AttachmentOffset = App.Placement(Vector(0, 0, -7), App.Rotation())
sketch14.addGeometry(Part.Circle(Vector(0, -42, 0), Vector(0, 0, 1), 1.7), False)
sketch14.addConstraint([
    Sketcher.Constraint("PointOnObject", 0, 3, -2),
    Sketcher.Constraint("Diameter", 0, Q("3.4 mm")),
    Sketcher.Constraint("DistanceY", 0, 3, -1, 1, Q("42 mm")),
])
doc.recompute()
hole5 = doc.addObject("PartDesign::Hole", "Hole004")
body.addObject(hole5)
hole5.Profile = sketch14
hole5.ThreadType = "None"
hole5.Diameter = 3.4
hole5.DepthType = "ThroughAll"
hole5.HoleCutType = "Countersink"
hole5.HoleCutDiameter = 6.9
hole5.HoleCutCountersinkAngle = 90
hole5.Reversed = True

sketch15 = doc.addObject("Sketcher::SketchObject", "Sketch014")
body.addObject(sketch15)
sketch15.AttachmentSupport = (doc.XZ_Plane, [""])
sketch15.MapMode = "FlatFace"
sketch15.AttachmentOffset = App.Placement(Vector(0, 0, -1), App.Rotation())
sketch15.addGeometry([
    Part.Circle(Vector(0, 24, 0), Vector(0, 0, 1), 0.7835),
    Part.Circle(Vector(0, -36, 0), Vector(0, 0, 1), 0.7835),
], False)
sketch15.addConstraint([
    Sketcher.Constraint("Equal", 0, 1),
    Sketcher.Constraint("PointOnObject", 0, 3, -2),
    Sketcher.Constraint("PointOnObject", 1, 3, -2),
    Sketcher.Constraint("Diameter", 0, Q("1.567 mm")),
    Sketcher.Constraint("DistanceY", -1, 1, 0, 3, Q("24 mm")),
    Sketcher.Constraint("DistanceY", 1, 3, -1, 1, Q("36 mm")),
])
doc.recompute()
hole6 = doc.addObject("PartDesign::Hole", "Hole005")
body.addObject(hole6)
hole6.Profile = sketch15
hole6.ThreadType = "None"
hole6.Diameter = 1.567
hole6.DepthType = "Dimension"
hole6.Depth = 5
hole6.DrillPoint = "Angled"
hole6.DrillPointAngle = 118

doc.recompute()
